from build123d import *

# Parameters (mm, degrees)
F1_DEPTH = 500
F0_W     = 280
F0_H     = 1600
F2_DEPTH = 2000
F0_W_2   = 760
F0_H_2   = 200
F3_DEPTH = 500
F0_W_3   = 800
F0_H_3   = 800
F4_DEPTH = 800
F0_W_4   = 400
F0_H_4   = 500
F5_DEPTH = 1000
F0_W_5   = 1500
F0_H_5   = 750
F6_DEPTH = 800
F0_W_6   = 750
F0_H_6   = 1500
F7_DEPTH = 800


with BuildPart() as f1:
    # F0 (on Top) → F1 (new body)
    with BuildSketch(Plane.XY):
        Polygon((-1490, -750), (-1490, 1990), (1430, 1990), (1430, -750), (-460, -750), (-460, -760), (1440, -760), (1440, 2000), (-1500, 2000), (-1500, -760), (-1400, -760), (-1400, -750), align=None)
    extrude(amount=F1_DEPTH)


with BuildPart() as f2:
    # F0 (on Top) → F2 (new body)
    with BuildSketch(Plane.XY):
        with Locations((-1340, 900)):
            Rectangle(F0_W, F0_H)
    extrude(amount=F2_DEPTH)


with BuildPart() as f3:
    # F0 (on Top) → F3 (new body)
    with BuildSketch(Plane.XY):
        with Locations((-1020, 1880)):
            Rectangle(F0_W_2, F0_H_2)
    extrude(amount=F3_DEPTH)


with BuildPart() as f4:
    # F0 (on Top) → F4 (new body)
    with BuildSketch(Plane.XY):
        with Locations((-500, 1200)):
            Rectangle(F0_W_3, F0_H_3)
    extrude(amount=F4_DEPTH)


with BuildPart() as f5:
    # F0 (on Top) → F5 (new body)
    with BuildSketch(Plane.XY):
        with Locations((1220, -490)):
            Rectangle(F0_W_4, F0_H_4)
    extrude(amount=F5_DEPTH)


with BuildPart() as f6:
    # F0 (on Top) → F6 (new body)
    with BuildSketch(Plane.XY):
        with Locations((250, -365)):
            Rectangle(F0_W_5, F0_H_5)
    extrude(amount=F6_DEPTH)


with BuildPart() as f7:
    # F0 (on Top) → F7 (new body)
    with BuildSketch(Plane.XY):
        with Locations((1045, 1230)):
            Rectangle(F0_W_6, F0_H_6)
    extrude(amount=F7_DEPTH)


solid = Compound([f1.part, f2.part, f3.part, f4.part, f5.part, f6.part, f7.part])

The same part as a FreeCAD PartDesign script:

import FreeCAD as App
import Part
import Sketcher

V = App.Vector
Q = App.Units.Quantity

doc = App.newDocument("Part")
body = doc.addObject("PartDesign::Body", "Body")

# Sketch on XY plane
sketch1 = body.newObject("Sketcher::SketchObject", "Sketch")
sketch1.AttachmentSupport = (doc.getObject("XY_Plane"), [""])
sketch1.MapMode = "FlatFace"
sketch1.addGeometry([
    Part.LineSegment(V(-1490, -750, 0), V(-1490, 1990, 0)),  # 0
    Part.LineSegment(V(-1490, 1990, 0), V(1430, 1990, 0)),  # 1
    Part.LineSegment(V(1430, 1990, 0), V(1430, -750, 0)),  # 2
    Part.LineSegment(V(1430, -750, 0), V(-460, -750, 0)),  # 3
    Part.LineSegment(V(-460, -750, 0), V(-460, -760, 0)),  # 4
    Part.LineSegment(V(-460, -760, 0), V(1440, -760, 0)),  # 5
    Part.LineSegment(V(1440, -760, 0), V(1440, 2000, 0)),  # 6
    Part.LineSegment(V(1440, 2000, 0), V(-1500, 2000, 0)),  # 7
    Part.LineSegment(V(-1500, 2000, 0), V(-1500, -760, 0)),  # 8
    Part.LineSegment(V(-1500, -760, 0), V(-1400, -760, 0)),  # 9
    Part.LineSegment(V(-1400, -760, 0), V(-1400, -750, 0)),  # 10
    Part.LineSegment(V(-1400, -750, 0), V(-1490, -750, 0)),  # 11
], False)
sketch1.addConstraint([
    Sketcher.Constraint("Coincident", 0, 2, 1, 1),
    Sketcher.Constraint("Coincident", 1, 2, 2, 1),
    Sketcher.Constraint("Coincident", 2, 2, 3, 1),
    Sketcher.Constraint("Coincident", 3, 2, 4, 1),
    Sketcher.Constraint("Coincident", 4, 2, 5, 1),
    Sketcher.Constraint("Coincident", 5, 2, 6, 1),
    Sketcher.Constraint("Coincident", 6, 2, 7, 1),
    Sketcher.Constraint("Coincident", 7, 2, 8, 1),
    Sketcher.Constraint("Coincident", 8, 2, 9, 1),
    Sketcher.Constraint("Coincident", 9, 2, 10, 1),
    Sketcher.Constraint("Coincident", 10, 2, 11, 1),
    Sketcher.Constraint("Coincident", 11, 2, 0, 1),
    Sketcher.Constraint("Vertical", 0),
    Sketcher.Constraint("Horizontal", 1),
    Sketcher.Constraint("Vertical", 2),
    Sketcher.Constraint("Horizontal", 3),
    Sketcher.Constraint("Vertical", 4),
    Sketcher.Constraint("Horizontal", 5),
    Sketcher.Constraint("Vertical", 6),
    Sketcher.Constraint("Horizontal", 7),
    Sketcher.Constraint("Vertical", 8),
    Sketcher.Constraint("Horizontal", 9),
    Sketcher.Constraint("Vertical", 10),
    Sketcher.Constraint("Horizontal", 11),
    Sketcher.Constraint("Horizontal", 5, 2, 8, 2),
    Sketcher.Constraint("Horizontal", 3, 2, 10, 2),
    Sketcher.Constraint("DistanceX", 1, 1, 1, 2, Q("2920 mm")),
    Sketcher.Constraint("DistanceX", 3, 2, 3, 1, Q("1890 mm")),
    Sketcher.Constraint("DistanceX", 5, 1, 5, 2, Q("1900 mm")),
    Sketcher.Constraint("DistanceX", 7, 2, 7, 1, Q("2940 mm")),
    Sketcher.Constraint("DistanceX", 9, 1, 9, 2, Q("100 mm")),
    Sketcher.Constraint("DistanceY", 0, 1, 0, 2, Q("2740 mm")),
    Sketcher.Constraint("DistanceY", 4, 2, 4, 1, Q("10 mm")),
    Sketcher.Constraint("DistanceY", 6, 1, 6, 2, Q("2760 mm")),
    Sketcher.Constraint("DistanceX", 0, 2, -1, 1, Q("1490 mm")),
    Sketcher.Constraint("DistanceY", -1, 1, 0, 2, Q("1990 mm")),
])
pad1 = body.newObject("PartDesign::Pad", "Pad")
pad1.Profile = sketch1
pad1.Length = 500
body2 = doc.addObject("PartDesign::Body", "Body001")

# Sketch on XY plane
sketch2 = body2.newObject("Sketcher::SketchObject", "Sketch001")
sketch2.AttachmentSupport = (doc.getObject("XY_Plane001"), [""])
sketch2.MapMode = "FlatFace"
sketch2.addGeometry([
    Part.LineSegment(V(-1480, 1700, 0), V(-1480, 100, 0)),
    Part.LineSegment(V(-1480, 100, 0), V(-1200, 100, 0)),
    Part.LineSegment(V(-1200, 100, 0), V(-1200, 1700, 0)),
    Part.LineSegment(V(-1200, 1700, 0), V(-1480, 1700, 0)),
], False)
sketch2.addConstraint([
    Sketcher.Constraint("Coincident", 0, 2, 1, 1),
    Sketcher.Constraint("Coincident", 1, 2, 2, 1),
    Sketcher.Constraint("Coincident", 2, 2, 3, 1),
    Sketcher.Constraint("Coincident", 3, 2, 0, 1),
    Sketcher.Constraint("Vertical", 0),
    Sketcher.Constraint("Horizontal", 1),
    Sketcher.Constraint("Vertical", 2),
    Sketcher.Constraint("Horizontal", 3),
    Sketcher.Constraint("DistanceX", 1, 1, 1, 2, Q("280 mm")),
    Sketcher.Constraint("DistanceY", 0, 2, 0, 1, Q("1600 mm")),
    Sketcher.Constraint("DistanceX", 0, 2, -1, 1, Q("1480 mm")),
    Sketcher.Constraint("DistanceY", -1, 1, 0, 2, Q("100 mm")),
])
pad2 = body2.newObject("PartDesign::Pad", "Pad001")
pad2.Profile = sketch2
pad2.Length = 2000
body3 = doc.addObject("PartDesign::Body", "Body002")

# Sketch on XY plane
sketch3 = body3.newObject("Sketcher::SketchObject", "Sketch002")
sketch3.AttachmentSupport = (doc.getObject("XY_Plane002"), [""])
sketch3.MapMode = "FlatFace"
sketch3.addGeometry([
    Part.LineSegment(V(-1400, 1980, 0), V(-1400, 1780, 0)),
    Part.LineSegment(V(-1400, 1780, 0), V(-640, 1780, 0)),
    Part.LineSegment(V(-640, 1780, 0), V(-640, 1980, 0)),
    Part.LineSegment(V(-640, 1980, 0), V(-1400, 1980, 0)),
], False)
sketch3.addConstraint([
    Sketcher.Constraint("Coincident", 0, 2, 1, 1),
    Sketcher.Constraint("Coincident", 1, 2, 2, 1),
    Sketcher.Constraint("Coincident", 2, 2, 3, 1),
    Sketcher.Constraint("Coincident", 3, 2, 0, 1),
    Sketcher.Constraint("Vertical", 0),
    Sketcher.Constraint("Horizontal", 1),
    Sketcher.Constraint("Vertical", 2),
    Sketcher.Constraint("Horizontal", 3),
    Sketcher.Constraint("DistanceX", 1, 1, 1, 2, Q("760 mm")),
    Sketcher.Constraint("DistanceY", 0, 2, 0, 1, Q("200 mm")),
    Sketcher.Constraint("DistanceX", 0, 2, -1, 1, Q("1400 mm")),
    Sketcher.Constraint("DistanceY", -1, 1, 0, 2, Q("1780 mm")),
])
pad3 = body3.newObject("PartDesign::Pad", "Pad002")
pad3.Profile = sketch3
pad3.Length = 500
body4 = doc.addObject("PartDesign::Body", "Body003")

# Sketch on XY plane
sketch4 = body4.newObject("Sketcher::SketchObject", "Sketch003")
sketch4.AttachmentSupport = (doc.getObject("XY_Plane003"), [""])
sketch4.MapMode = "FlatFace"
sketch4.addGeometry([
    Part.LineSegment(V(-900, 1600, 0), V(-900, 800, 0)),
    Part.LineSegment(V(-900, 800, 0), V(-100, 800, 0)),
    Part.LineSegment(V(-100, 800, 0), V(-100, 1600, 0)),
    Part.LineSegment(V(-100, 1600, 0), V(-900, 1600, 0)),
], False)
sketch4.addConstraint([
    Sketcher.Constraint("Coincident", 0, 2, 1, 1),
    Sketcher.Constraint("Coincident", 1, 2, 2, 1),
    Sketcher.Constraint("Coincident", 2, 2, 3, 1),
    Sketcher.Constraint("Coincident", 3, 2, 0, 1),
    Sketcher.Constraint("Vertical", 0),
    Sketcher.Constraint("Horizontal", 1),
    Sketcher.Constraint("Vertical", 2),
    Sketcher.Constraint("Horizontal", 3),
    Sketcher.Constraint("Equal", 3, 0),
    Sketcher.Constraint("DistanceX", 1, 1, 1, 2, Q("800 mm")),
    Sketcher.Constraint("DistanceX", 0, 2, -1, 1, Q("900 mm")),
    Sketcher.Constraint("DistanceY", -1, 1, 0, 2, Q("800 mm")),
])
pad4 = body4.newObject("PartDesign::Pad", "Pad003")
pad4.Profile = sketch4
pad4.Length = 800
body5 = doc.addObject("PartDesign::Body", "Body004")

# Sketch on XY plane
sketch5 = body5.newObject("Sketcher::SketchObject", "Sketch004")
sketch5.AttachmentSupport = (doc.getObject("XY_Plane004"), [""])
sketch5.MapMode = "FlatFace"
sketch5.addGeometry([
    Part.LineSegment(V(1020, -240, 0), V(1020, -740, 0)),
    Part.LineSegment(V(1020, -740, 0), V(1420, -740, 0)),
    Part.LineSegment(V(1420, -740, 0), V(1420, -240, 0)),
    Part.LineSegment(V(1420, -240, 0), V(1020, -240, 0)),
], False)
sketch5.addConstraint([
    Sketcher.Constraint("Coincident", 0, 2, 1, 1),
    Sketcher.Constraint("Coincident", 1, 2, 2, 1),
    Sketcher.Constraint("Coincident", 2, 2, 3, 1),
    Sketcher.Constraint("Coincident", 3, 2, 0, 1),
    Sketcher.Constraint("Vertical", 0),
    Sketcher.Constraint("Horizontal", 1),
    Sketcher.Constraint("Vertical", 2),
    Sketcher.Constraint("Horizontal", 3),
    Sketcher.Constraint("DistanceX", 1, 1, 1, 2, Q("400 mm")),
    Sketcher.Constraint("DistanceY", 0, 2, 0, 1, Q("500 mm")),
    Sketcher.Constraint("DistanceX", -1, 1, 0, 2, Q("1020 mm")),
    Sketcher.Constraint("DistanceY", 0, 2, -1, 1, Q("740 mm")),
])
pad5 = body5.newObject("PartDesign::Pad", "Pad004")
pad5.Profile = sketch5
pad5.Length = 1000
body6 = doc.addObject("PartDesign::Body", "Body005")

# Sketch on XY plane
sketch6 = body6.newObject("Sketcher::SketchObject", "Sketch005")
sketch6.AttachmentSupport = (doc.getObject("XY_Plane005"), [""])
sketch6.MapMode = "FlatFace"
sketch6.addGeometry([
    Part.LineSegment(V(-500, 10, 0), V(-500, -740, 0)),
    Part.LineSegment(V(-500, -740, 0), V(1000, -740, 0)),
    Part.LineSegment(V(1000, -740, 0), V(1000, 10, 0)),
    Part.LineSegment(V(1000, 10, 0), V(-500, 10, 0)),
], False)
sketch6.addConstraint([
    Sketcher.Constraint("Coincident", 0, 2, 1, 1),
    Sketcher.Constraint("Coincident", 1, 2, 2, 1),
    Sketcher.Constraint("Coincident", 2, 2, 3, 1),
    Sketcher.Constraint("Coincident", 3, 2, 0, 1),
    Sketcher.Constraint("Vertical", 0),
    Sketcher.Constraint("Horizontal", 1),
    Sketcher.Constraint("Vertical", 2),
    Sketcher.Constraint("Horizontal", 3),
    Sketcher.Constraint("DistanceX", 1, 1, 1, 2, Q("1500 mm")),
    Sketcher.Constraint("DistanceY", 0, 2, 0, 1, Q("750 mm")),
    Sketcher.Constraint("DistanceX", 0, 2, -1, 1, Q("500 mm")),
    Sketcher.Constraint("DistanceY", 0, 2, -1, 1, Q("740 mm")),
])
pad6 = body6.newObject("PartDesign::Pad", "Pad005")
pad6.Profile = sketch6
pad6.Length = 800
body7 = doc.addObject("PartDesign::Body", "Body006")

# Sketch on XY plane
sketch7 = body7.newObject("Sketcher::SketchObject", "Sketch006")
sketch7.AttachmentSupport = (doc.getObject("XY_Plane006"), [""])
sketch7.MapMode = "FlatFace"
sketch7.addGeometry([
    Part.LineSegment(V(670, 1980, 0), V(670, 480, 0)),
    Part.LineSegment(V(670, 480, 0), V(1420, 480, 0)),
    Part.LineSegment(V(1420, 480, 0), V(1420, 1980, 0)),
    Part.LineSegment(V(1420, 1980, 0), V(670, 1980, 0)),
], False)
sketch7.addConstraint([
    Sketcher.Constraint("Coincident", 0, 2, 1, 1),
    Sketcher.Constraint("Coincident", 1, 2, 2, 1),
    Sketcher.Constraint("Coincident", 2, 2, 3, 1),
    Sketcher.Constraint("Coincident", 3, 2, 0, 1),
    Sketcher.Constraint("Vertical", 0),
    Sketcher.Constraint("Horizontal", 1),
    Sketcher.Constraint("Vertical", 2),
    Sketcher.Constraint("Horizontal", 3),
    Sketcher.Constraint("DistanceX", 1, 1, 1, 2, Q("750 mm")),
    Sketcher.Constraint("DistanceY", 0, 2, 0, 1, Q("1500 mm")),
    Sketcher.Constraint("DistanceX", -1, 1, 0, 2, Q("670 mm")),
    Sketcher.Constraint("DistanceY", -1, 1, 0, 2, Q("480 mm")),
])
pad7 = body7.newObject("PartDesign::Pad", "Pad006")
pad7.Profile = sketch7
pad7.Length = 800

doc.recompute()
